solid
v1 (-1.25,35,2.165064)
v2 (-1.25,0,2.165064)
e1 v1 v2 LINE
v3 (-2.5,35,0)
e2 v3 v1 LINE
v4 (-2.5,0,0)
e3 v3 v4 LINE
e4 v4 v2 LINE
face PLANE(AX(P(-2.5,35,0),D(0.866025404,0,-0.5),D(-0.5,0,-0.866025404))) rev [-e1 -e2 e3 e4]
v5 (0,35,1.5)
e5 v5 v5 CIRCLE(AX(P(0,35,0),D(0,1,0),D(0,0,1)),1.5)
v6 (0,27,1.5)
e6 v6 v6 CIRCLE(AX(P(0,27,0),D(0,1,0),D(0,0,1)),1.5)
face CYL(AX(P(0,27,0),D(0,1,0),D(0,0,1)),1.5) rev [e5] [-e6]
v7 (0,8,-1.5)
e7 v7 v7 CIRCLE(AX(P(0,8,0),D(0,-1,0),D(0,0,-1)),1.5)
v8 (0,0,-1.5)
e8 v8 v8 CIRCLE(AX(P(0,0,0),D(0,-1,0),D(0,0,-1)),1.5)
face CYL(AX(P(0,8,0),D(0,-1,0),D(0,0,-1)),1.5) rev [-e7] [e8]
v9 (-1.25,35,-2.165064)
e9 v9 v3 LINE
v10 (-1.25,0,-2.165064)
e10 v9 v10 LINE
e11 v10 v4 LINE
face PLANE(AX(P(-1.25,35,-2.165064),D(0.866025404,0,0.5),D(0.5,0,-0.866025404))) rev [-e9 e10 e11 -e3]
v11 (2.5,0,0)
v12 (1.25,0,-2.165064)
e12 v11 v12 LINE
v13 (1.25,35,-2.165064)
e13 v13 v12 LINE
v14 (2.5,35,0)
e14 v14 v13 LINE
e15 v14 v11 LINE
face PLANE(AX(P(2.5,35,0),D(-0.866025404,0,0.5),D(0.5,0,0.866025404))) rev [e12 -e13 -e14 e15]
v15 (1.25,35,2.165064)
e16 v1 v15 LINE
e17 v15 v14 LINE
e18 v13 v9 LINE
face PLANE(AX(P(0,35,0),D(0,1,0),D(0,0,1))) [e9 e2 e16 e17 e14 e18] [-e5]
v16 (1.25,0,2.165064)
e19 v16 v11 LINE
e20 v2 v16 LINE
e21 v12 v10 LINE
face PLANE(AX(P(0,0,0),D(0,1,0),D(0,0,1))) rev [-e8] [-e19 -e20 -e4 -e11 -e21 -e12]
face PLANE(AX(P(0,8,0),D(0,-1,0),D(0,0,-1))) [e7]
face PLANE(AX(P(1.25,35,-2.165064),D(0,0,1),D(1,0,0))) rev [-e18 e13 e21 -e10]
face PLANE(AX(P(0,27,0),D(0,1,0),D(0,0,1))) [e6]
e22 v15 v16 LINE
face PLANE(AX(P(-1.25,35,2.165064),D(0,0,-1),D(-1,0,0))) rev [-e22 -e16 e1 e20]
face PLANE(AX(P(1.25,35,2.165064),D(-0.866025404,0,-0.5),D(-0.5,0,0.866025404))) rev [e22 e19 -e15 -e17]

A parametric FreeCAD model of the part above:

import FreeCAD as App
import Part
import Sketcher

V = App.Vector
Q = App.Units.Quantity

doc = App.newDocument("Part")
body = doc.addObject("PartDesign::Body", "Body")

sketch1 = doc.addObject("Sketcher::SketchObject", "Sketch")
body.addObject(sketch1)
sketch1.AttachmentSupport = (doc.XZ_Plane, [""])
sketch1.MapMode = "FlatFace"
sketch1.addGeometry([
    Part.LineSegment(V(2.5, 0, 0), V(1.2, -2.2, 0)),
    Part.LineSegment(V(1.2, -2.2, 0), V(-1.2, -2.2, 0)),
    Part.LineSegment(V(-1.2, -2.2, 0), V(-2.5, 0, 0)),
    Part.LineSegment(V(-2.5, 0, 0), V(-1.2, 2.2, 0)),
    Part.LineSegment(V(-1.2, 2.2, 0), V(1.2, 2.2, 0)),
    Part.LineSegment(V(1.2, 2.2, 0), V(2.5, 0, 0)),
], False)
sketch1.addConstraint([
    Sketcher.Constraint("Coincident", 0, 2, 1, 1),
    Sketcher.Constraint("Coincident", 1, 2, 2, 1),
    Sketcher.Constraint("Coincident", 2, 2, 3, 1),
    Sketcher.Constraint("Coincident", 3, 2, 4, 1),
    Sketcher.Constraint("Coincident", 4, 2, 5, 1),
    Sketcher.Constraint("Coincident", 5, 2, 0, 1),
    Sketcher.Constraint("Horizontal", 1),
    Sketcher.Constraint("Horizontal", 4),
    Sketcher.Constraint("Symmetric", 0, 2, 3, 2, -1, 1),
    Sketcher.Constraint("Symmetric", 2, 2, 5, 2, -1, 1),
    Sketcher.Constraint("PointOnObject", 2, 2, -1),
    Sketcher.Constraint("Parallel", 2, 5),
    Sketcher.Constraint("Vertical", 1, 2, 3, 2),
    Sketcher.Constraint("Angle", 0, Q("-120 deg")),
    Sketcher.Constraint("DistanceX", 1, 2, 1, 1, 2.5),
    Sketcher.Constraint("DistanceX", 2, 2, 5, 2, 5.0),
])
pad1 = doc.addObject("PartDesign::Pad", "Pad")
body.addObject(pad1)
pad1.Profile = sketch1
pad1.Length = 35
pad1.Reversed = True

sketch2 = doc.addObject("Sketcher::SketchObject", "Sketch001")
body.addObject(sketch2)
sketch2.AttachmentSupport = (doc.XZ_Plane, [""])
sketch2.MapMode = "FlatFace"
sketch2.AttachmentOffset = App.Placement(V(0, 0, -35), App.Rotation())
sketch2.addGeometry(Part.Circle(V(0, 0, 0), V(0, 0, 1), 1.5), False)
sketch2.addConstraint([
    Sketcher.Constraint("Coincident", 0, 3, -1, 1),
    Sketcher.Constraint("Diameter", 0, 3.0),
])
pocket1 = doc.addObject("PartDesign::Pocket", "Pocket")
body.addObject(pocket1)
pocket1.Profile = sketch2
pocket1.Length = 8
pocket1.Reversed = True

sketch3 = doc.addObject("Sketcher::SketchObject", "Sketch002")
body.addObject(sketch3)
sketch3.AttachmentSupport = (doc.XZ_Plane, [""])
sketch3.MapMode = "FlatFace"
sketch3.AttachmentOffset = App.Placement(V(0, 0, -8), App.Rotation())
sketch3.addGeometry(Part.Circle(V(0, 0, 0), V(0, 0, 1), 1.5), False)
sketch3.addConstraint([
    Sketcher.Constraint("Coincident", 0, 3, -1, 1),
    Sketcher.Constraint("Diameter", 0, 3.0),
])
pocket2 = doc.addObject("PartDesign::Pocket", "Pocket001")
body.addObject(pocket2)
pocket2.Profile = sketch3
pocket2.Length = 8
pocket2.Reversed = True

doc.recompute()
